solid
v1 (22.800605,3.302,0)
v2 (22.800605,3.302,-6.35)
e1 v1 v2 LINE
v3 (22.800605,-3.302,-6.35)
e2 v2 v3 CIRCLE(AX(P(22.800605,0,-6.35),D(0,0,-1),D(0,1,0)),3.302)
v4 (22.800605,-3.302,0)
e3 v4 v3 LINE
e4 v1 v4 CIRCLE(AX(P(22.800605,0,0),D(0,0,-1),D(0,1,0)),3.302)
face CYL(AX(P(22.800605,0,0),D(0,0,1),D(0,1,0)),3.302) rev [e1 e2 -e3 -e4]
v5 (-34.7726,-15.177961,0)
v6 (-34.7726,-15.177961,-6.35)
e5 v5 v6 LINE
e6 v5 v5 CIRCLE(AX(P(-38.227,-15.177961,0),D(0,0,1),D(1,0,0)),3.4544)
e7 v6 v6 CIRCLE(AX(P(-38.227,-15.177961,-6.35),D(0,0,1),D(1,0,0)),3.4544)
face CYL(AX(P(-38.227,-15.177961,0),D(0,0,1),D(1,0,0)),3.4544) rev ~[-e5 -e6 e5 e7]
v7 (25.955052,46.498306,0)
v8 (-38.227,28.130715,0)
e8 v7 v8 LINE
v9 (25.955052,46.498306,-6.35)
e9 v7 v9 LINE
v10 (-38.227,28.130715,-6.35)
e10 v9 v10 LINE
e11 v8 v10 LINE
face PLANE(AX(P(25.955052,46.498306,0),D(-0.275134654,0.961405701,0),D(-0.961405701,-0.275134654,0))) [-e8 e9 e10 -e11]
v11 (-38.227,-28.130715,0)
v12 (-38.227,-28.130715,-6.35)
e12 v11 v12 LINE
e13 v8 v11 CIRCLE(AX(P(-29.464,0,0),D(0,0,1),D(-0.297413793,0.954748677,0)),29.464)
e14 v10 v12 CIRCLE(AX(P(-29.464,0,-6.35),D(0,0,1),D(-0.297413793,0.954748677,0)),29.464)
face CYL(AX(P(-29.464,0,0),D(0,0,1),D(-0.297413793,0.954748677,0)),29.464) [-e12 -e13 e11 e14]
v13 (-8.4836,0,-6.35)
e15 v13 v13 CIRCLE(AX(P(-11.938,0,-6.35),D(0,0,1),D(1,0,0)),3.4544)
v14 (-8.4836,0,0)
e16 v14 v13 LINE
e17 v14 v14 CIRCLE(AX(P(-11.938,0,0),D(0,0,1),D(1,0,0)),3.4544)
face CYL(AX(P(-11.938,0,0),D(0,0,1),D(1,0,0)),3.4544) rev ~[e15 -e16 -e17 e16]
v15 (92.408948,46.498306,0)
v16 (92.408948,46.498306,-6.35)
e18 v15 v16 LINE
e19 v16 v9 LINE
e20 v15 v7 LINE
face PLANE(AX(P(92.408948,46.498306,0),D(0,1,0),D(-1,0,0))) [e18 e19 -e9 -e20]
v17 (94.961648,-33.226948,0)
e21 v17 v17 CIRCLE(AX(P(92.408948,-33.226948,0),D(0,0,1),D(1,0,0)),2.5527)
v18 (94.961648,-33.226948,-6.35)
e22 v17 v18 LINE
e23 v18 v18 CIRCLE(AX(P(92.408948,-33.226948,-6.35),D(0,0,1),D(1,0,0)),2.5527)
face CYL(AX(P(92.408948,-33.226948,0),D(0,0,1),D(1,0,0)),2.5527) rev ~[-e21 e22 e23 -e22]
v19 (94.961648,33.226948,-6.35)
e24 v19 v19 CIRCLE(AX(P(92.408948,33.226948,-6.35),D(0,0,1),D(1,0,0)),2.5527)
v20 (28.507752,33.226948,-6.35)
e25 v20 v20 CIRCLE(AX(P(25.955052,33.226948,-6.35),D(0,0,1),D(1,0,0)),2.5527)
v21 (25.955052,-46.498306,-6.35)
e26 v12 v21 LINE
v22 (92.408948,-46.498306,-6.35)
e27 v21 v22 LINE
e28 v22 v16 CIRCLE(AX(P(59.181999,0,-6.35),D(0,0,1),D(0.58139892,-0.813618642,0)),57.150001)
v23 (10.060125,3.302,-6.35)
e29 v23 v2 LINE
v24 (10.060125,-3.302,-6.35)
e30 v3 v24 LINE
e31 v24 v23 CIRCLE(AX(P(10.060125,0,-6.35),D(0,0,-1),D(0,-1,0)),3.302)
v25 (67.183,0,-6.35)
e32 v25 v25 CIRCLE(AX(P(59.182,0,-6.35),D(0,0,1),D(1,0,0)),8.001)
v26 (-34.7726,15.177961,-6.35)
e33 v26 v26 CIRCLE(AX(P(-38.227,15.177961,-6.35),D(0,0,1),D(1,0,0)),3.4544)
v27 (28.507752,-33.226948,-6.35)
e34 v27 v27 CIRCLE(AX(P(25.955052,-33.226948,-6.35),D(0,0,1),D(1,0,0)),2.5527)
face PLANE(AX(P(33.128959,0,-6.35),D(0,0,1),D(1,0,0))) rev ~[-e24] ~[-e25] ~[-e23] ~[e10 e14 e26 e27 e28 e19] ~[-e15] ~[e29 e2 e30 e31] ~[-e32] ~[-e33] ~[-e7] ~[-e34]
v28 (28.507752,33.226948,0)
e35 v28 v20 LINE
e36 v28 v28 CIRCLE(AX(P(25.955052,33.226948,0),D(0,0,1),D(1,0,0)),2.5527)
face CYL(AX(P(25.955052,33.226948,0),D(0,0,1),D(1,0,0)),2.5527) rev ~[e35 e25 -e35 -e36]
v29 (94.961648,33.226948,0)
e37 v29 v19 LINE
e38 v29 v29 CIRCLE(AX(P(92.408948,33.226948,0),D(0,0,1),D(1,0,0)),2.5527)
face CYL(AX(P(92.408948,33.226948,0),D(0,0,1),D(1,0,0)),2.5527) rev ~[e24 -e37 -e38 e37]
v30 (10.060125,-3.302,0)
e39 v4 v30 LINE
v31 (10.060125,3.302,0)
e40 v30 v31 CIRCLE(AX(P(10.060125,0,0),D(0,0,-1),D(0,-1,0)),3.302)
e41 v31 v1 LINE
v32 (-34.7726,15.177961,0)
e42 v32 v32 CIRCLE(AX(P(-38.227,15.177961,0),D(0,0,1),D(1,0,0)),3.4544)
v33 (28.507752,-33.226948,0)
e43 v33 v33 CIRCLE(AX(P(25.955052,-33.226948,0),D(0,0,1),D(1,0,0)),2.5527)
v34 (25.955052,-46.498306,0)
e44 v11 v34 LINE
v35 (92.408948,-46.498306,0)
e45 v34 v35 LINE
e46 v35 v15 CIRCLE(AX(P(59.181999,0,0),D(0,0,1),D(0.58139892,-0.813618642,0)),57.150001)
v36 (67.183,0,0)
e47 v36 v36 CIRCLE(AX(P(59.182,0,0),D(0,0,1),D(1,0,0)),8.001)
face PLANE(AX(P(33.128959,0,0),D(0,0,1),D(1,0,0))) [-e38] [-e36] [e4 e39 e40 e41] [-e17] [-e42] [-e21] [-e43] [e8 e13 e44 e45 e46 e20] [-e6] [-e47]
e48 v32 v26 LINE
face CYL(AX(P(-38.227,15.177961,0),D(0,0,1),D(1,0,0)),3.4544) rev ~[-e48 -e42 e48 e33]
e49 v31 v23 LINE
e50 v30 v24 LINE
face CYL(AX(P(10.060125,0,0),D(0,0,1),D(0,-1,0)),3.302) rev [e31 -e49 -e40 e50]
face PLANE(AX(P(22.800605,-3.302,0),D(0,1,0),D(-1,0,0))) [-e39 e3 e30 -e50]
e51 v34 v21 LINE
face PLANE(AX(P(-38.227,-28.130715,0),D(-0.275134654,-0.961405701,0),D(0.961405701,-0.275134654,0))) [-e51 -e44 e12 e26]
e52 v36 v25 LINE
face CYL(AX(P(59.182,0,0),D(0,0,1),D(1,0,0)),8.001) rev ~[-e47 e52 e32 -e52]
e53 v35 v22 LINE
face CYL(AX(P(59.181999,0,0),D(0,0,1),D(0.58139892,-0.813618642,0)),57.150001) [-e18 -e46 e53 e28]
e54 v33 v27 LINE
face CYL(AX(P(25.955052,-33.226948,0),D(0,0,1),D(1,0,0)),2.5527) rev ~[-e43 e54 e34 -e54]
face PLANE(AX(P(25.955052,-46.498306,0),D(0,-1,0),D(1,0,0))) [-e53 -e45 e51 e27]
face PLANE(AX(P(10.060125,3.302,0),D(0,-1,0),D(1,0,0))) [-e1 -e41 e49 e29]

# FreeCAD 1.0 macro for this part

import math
import FreeCAD as App
import Part
import Sketcher
from FreeCAD import Vector
Q = App.Units.Quantity

doc = App.newDocument("Part")
body = doc.addObject("PartDesign::Body", "Body")

# Sketch on XY plane
sketch1 = body.newObject("Sketcher::SketchObject", "Sketch")
sketch1.AttachmentSupport = (doc.getObject("XY_Plane"), [""])
sketch1.MapMode = "FlatFace"
sketch1.addGeometry(Part.LineSegment(Vector(92.4, 46.5, 0), Vector(26, 46.5, 0)), False)
sketch1.addGeometry(Part.LineSegment(Vector(26, 46.5, 0), Vector(-38.2, 28.1, 0)), False)
sketch1.addGeometry(Part.ArcOfCircle(Part.Circle(Vector(-29.5, 0, 0), Vector(0, 0, 1), 29.5), math.radians(107), math.radians(253)), False)
sketch1.addGeometry(Part.LineSegment(Vector(-38.2, -28.1, 0), Vector(26, -46.5, 0)), False)
sketch1.addGeometry(Part.LineSegment(Vector(26, -46.5, 0), Vector(92.4, -46.5, 0)), False)
sketch1.addGeometry(Part.ArcOfCircle(Part.Circle(Vector(59.2, 0, 0), Vector(0, 0, 1), 57.2), math.radians(-54), math.radians(54)), False)
sketch1.addGeometry(Part.Circle(Vector(26, -33.2, 0), Vector(0, 0, 1), 2.6), False)
sketch1.addGeometry(Part.Circle(Vector(-38.2, -15.2, 0), Vector(0, 0, 1), 3.5), False)
sketch1.addGeometry(Part.Circle(Vector(92.4, -33.2, 0), Vector(0, 0, 1), 2.6), False)
sketch1.addGeometry(Part.Circle(Vector(-11.9, 0, 0), Vector(0, 0, 1), 3.5), False)
sketch1.addGeometry(Part.Circle(Vector(-38.2, 15.2, 0), Vector(0, 0, 1), 3.5), False)
sketch1.addGeometry(Part.LineSegment(Vector(10.1, 3.3, 0), Vector(22.8, 3.3, 0)), False)
sketch1.addGeometry(Part.ArcOfCircle(Part.Circle(Vector(22.8, 0, 0), Vector(0, 0, 1), 3.3), math.radians(-90), math.radians(90)), False)
sketch1.addGeometry(Part.LineSegment(Vector(22.8, -3.3, 0), Vector(10.1, -3.3, 0)), False)
sketch1.addGeometry(Part.ArcOfCircle(Part.Circle(Vector(10.1, 0, 0), Vector(0, 0, 1), 3.3), math.radians(90), math.radians(270)), False)
sketch1.addGeometry(Part.Circle(Vector(26, 33.2, 0), Vector(0, 0, 1), 2.6), False)
sketch1.addGeometry(Part.Circle(Vector(59.2, 0, 0), Vector(0, 0, 1), 8), False)
sketch1.addGeometry(Part.Circle(Vector(92.4, 33.2, 0), Vector(0, 0, 1), 2.6), False)
sketch1.addConstraint(Sketcher.Constraint("Coincident", 0, 2, 1, 1))
sketch1.addConstraint(Sketcher.Constraint("Coincident", 1, 2, 2, 1))
sketch1.addConstraint(Sketcher.Constraint("Coincident", 2, 2, 3, 1))
sketch1.addConstraint(Sketcher.Constraint("Coincident", 3, 2, 4, 1))
sketch1.addConstraint(Sketcher.Constraint("Coincident", 4, 2, 5, 1))
sketch1.addConstraint(Sketcher.Constraint("Coincident", 5, 2, 0, 1))
sketch1.addConstraint(Sketcher.Constraint("Tangent", 11, 2, 12, 2))
sketch1.addConstraint(Sketcher.Constraint("Tangent", 12, 1, 13, 1))
sketch1.addConstraint(Sketcher.Constraint("Tangent", 13, 2, 14, 2))
sketch1.addConstraint(Sketcher.Constraint("Tangent", 14, 1, 11, 1))
sketch1.addConstraint(Sketcher.Constraint("Horizontal", 0))
sketch1.addConstraint(Sketcher.Constraint("Horizontal", 4))
sketch1.addConstraint(Sketcher.Constraint("Horizontal", 11))
sketch1.addConstraint(Sketcher.Constraint("Horizontal", 13))
sketch1.addConstraint(Sketcher.Constraint("Coincident", 16, 3, 5, 3))
sketch1.addConstraint(Sketcher.Constraint("Equal", 6, 8))
sketch1.addConstraint(Sketcher.Constraint("Equal", 7, 9))
sketch1.addConstraint(Sketcher.Constraint("Equal", 9, 10))
sketch1.addConstraint(Sketcher.Constraint("Equal", 8, 15))
sketch1.addConstraint(Sketcher.Constraint("Equal", 15, 17))
sketch1.addConstraint(Sketcher.Constraint("Symmetric", 7, 3, 10, 3, -1))
sketch1.addConstraint(Sketcher.Constraint("Symmetric", 6, 3, 15, 3, -1))
sketch1.addConstraint(Sketcher.Constraint("Symmetric", 8, 3, 17, 3, -1))
sketch1.addConstraint(Sketcher.Constraint("Symmetric", 1, 2, 2, 2, -1))
sketch1.addConstraint(Sketcher.Constraint("Symmetric", 0, 2, 3, 2, -1))
sketch1.addConstraint(Sketcher.Constraint("PointOnObject", 5, 3, -1))
sketch1.addConstraint(Sketcher.Constraint("PointOnObject", 9, 3, -1))
sketch1.addConstraint(Sketcher.Constraint("PointOnObject", 12, 3, -1))
sketch1.addConstraint(Sketcher.Constraint("Horizontal", 6, 3, 8, 3))
sketch1.addConstraint(Sketcher.Constraint("Vertical", 15, 3, 0, 2))
sketch1.addConstraint(Sketcher.Constraint("Vertical", 10, 3, 1, 2))
sketch1.addConstraint(Sketcher.Constraint("Vertical", 17, 3, 4, 2))
sketch1.addConstraint(Sketcher.Constraint("Diameter", 16, Q("0.63 in")))
sketch1.addConstraint(Sketcher.Constraint("Radius", 2, Q("1.16 in")))
sketch1.addConstraint(Sketcher.Constraint("Radius", 5, Q("2.25 in")))
sketch1.addConstraint(Sketcher.Constraint("Radius", 12, Q("0.13 in")))
sketch1.addConstraint(Sketcher.Constraint("Diameter", 6, Q("0.201 in")))
sketch1.addConstraint(Sketcher.Constraint("Diameter", 7, Q("0.272 in")))
sketch1.addConstraint(Sketcher.Constraint("DistanceX", 9, 3, 5, 3, Q("2.8 in")))
sketch1.addConstraint(Sketcher.Constraint("DistanceX", 2, 3, -1, 1, Q("1.16 in")))
sketch1.addConstraint(Sketcher.Constraint("DistanceX", -1, 1, 5, 3, Q("2.33 in")))
sketch1.addConstraint(Sketcher.Constraint("DistanceX", 7, 3, -1, 1, Q("1.505 in")))
sketch1.addConstraint(Sketcher.Constraint("DistanceX", 11, 1, 11, 2, Q("12.74048 mm")))
sketch1.addConstraint(Sketcher.Constraint("Distance", 1, Q("66.758551 mm")))
sketch1.addConstraint(Sketcher.Constraint("DistanceX", 0, 2, 0, 1, Q("66.453896 mm")))
sketch1.addConstraint(Sketcher.Constraint("DistanceY", 7, 3, -1, 1, Q("15.177961 mm")))
sketch1.addConstraint(Sketcher.Constraint("DistanceY", 6, 3, 10, 3, Q("48.404909 mm")))
sketch1.addConstraint(Sketcher.Constraint("DistanceX", -1, 1, 12, 3, Q("22.800605 mm")))
pad1 = body.newObject("PartDesign::Pad", "Pad")
pad1.Profile = sketch1
pad1.Length = Q("0.25 in")
pad1.Reversed = True

doc.recompute()
